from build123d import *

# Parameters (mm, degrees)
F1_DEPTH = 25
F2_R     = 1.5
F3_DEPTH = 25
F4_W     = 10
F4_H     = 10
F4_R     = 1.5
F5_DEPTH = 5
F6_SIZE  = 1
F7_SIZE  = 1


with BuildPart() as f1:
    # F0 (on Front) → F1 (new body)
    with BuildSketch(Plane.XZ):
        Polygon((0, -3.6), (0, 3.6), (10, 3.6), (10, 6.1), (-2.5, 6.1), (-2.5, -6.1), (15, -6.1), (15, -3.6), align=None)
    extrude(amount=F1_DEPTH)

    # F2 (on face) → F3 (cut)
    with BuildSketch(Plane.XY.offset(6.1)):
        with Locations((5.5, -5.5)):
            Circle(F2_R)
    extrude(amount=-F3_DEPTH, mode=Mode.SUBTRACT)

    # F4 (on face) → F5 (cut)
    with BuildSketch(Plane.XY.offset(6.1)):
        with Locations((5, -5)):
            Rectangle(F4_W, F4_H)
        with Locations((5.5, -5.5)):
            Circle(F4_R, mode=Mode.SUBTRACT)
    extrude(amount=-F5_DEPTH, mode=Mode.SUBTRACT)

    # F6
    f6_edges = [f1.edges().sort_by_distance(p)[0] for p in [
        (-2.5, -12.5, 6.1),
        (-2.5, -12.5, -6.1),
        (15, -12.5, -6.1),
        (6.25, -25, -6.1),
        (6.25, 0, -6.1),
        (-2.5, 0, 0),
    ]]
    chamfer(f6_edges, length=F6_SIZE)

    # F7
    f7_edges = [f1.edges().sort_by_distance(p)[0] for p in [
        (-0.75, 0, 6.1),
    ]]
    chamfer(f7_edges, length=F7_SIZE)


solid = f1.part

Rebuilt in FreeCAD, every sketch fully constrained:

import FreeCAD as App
import Part
import Sketcher

V = App.Vector
Q = App.Units.Quantity


def edges_at(feature, points):
    """Names of the edges that pass closest to the given points."""
    edges = feature.Shape.Edges
    near = lambda p: min(range(len(edges)), key=lambda i: edges[i].distToShape(Part.Vertex(*p))[0])
    return sorted({f"Edge{near(p) + 1}" for p in points})


def add_polygon(sketch, points):
    """Adds a closed chain of lines whose ends are joined by coincident constraints."""
    first, n = sketch.GeometryCount, len(points)
    for a, b in zip(points, points[1:] + points[:1]):
        sketch.addGeometry(Part.LineSegment(App.Vector(*a, 0), App.Vector(*b, 0)), False)
    for i in range(n):
        sketch.addConstraint(Sketcher.Constraint("Coincident", first + i, 2, first + (i + 1) % n, 1))

doc = App.newDocument("Part")
body = doc.addObject("PartDesign::Body", "Body")

sketch1 = body.newObject("Sketcher::SketchObject", "Sketch")
sketch1.AttachmentSupport = (doc.getObject("XZ_Plane"), [""])
sketch1.MapMode = "FlatFace"
add_polygon(sketch1, [(0, -3.6), (0, 3.6), (10, 3.6), (10, 6.1), (-2.5, 6.1), (-2.5, -6.1), (15, -6.1), (15, -3.6)])
sketch1.addConstraint([
    Sketcher.Constraint("Vertical", 0),
    Sketcher.Constraint("Horizontal", 1),
    Sketcher.Constraint("Vertical", 2),
    Sketcher.Constraint("Horizontal", 3),
    Sketcher.Constraint("Vertical", 4),
    Sketcher.Constraint("Horizontal", 5),
    Sketcher.Constraint("Vertical", 6),
    Sketcher.Constraint("Horizontal", 7),
    Sketcher.Constraint("Symmetric", 0, 2, 7, 2, -1, 1),
    Sketcher.Constraint("Equal", 2, 6),
    Sketcher.Constraint("DistanceX", 1, 1, 1, 2, Q("10 mm")),
    Sketcher.Constraint("DistanceX", 7, 2, 7, 1, Q("15 mm")),
    Sketcher.Constraint("DistanceX", 3, 2, 3, 1, Q("12.5 mm")),
    Sketcher.Constraint("DistanceY", 0, 1, 0, 2, Q("7.2 mm")),
    Sketcher.Constraint("DistanceY", 2, 1, 2, 2, Q("2.5 mm")),
])
pad1 = body.newObject("PartDesign::Pad", "Pad")
pad1.Profile = sketch1
pad1.Length = 25

sketch2 = body.newObject("Sketcher::SketchObject", "Sketch001")
sketch2.AttachmentSupport = (doc.getObject("XY_Plane"), [""])
sketch2.MapMode = "FlatFace"
sketch2.AttachmentOffset = App.Placement(V(0, 0, 6.1), App.Rotation())
sketch2.addGeometry(Part.Circle(V(5.5, -5.5, 0), V(0, 0, 1), 1.5), False)
sketch2.addConstraint([
    Sketcher.Constraint("Diameter", 0, Q("3 mm")),
    Sketcher.Constraint("DistanceX", -1, 1, 0, 3, Q("5.5 mm")),
    Sketcher.Constraint("DistanceY", 0, 3, -1, 1, Q("5.5 mm")),
])
pocket1 = body.newObject("PartDesign::Pocket", "Pocket")
pocket1.Profile = sketch2
pocket1.Length = 25

sketch3 = body.newObject("Sketcher::SketchObject", "Sketch002")
sketch3.AttachmentSupport = (doc.getObject("XY_Plane"), [""])
sketch3.MapMode = "FlatFace"
sketch3.AttachmentOffset = App.Placement(V(0, 0, 6.1), App.Rotation())
add_polygon(sketch3, [(0, 0), (0, -10), (10, -10), (10, 0)])
sketch3.addGeometry(Part.Circle(V(5.5, -5.5, 0), V(0, 0, 1), 1.5), False)
sketch3.addConstraint([
    Sketcher.Constraint("Vertical", 0),
    Sketcher.Constraint("Horizontal", 1),
    Sketcher.Constraint("Vertical", 2),
    Sketcher.Constraint("Horizontal", 3),
    Sketcher.Constraint("Coincident", 3, 2, -1, 1),
    Sketcher.Constraint("Equal", 3, 0),
    Sketcher.Constraint("Diameter", 4, Q("3 mm")),
    Sketcher.Constraint("DistanceX", 1, 1, 1, 2, Q("10 mm")),
    Sketcher.Constraint("DistanceX", -1, 1, 4, 3, Q("5.5 mm")),
    Sketcher.Constraint("DistanceY", 4, 3, -1, 1, Q("5.5 mm")),
])
pocket2 = body.newObject("PartDesign::Pocket", "Pocket001")
pocket2.Profile = sketch3
pocket2.Length = 5
doc.recompute()

chamfer = body.newObject("PartDesign::Chamfer", "Chamfer")
chamfer.Base = (pocket2, edges_at(pocket2, [
    (-2.5, -12.5, 6.1),
    (-2.5, -12.5, -6.1),
    (15, -12.5, -6.1),
    (6.25, -25, -6.1),
    (6.25, 0, -6.1),
    (-2.5, 0, 0),
]))
chamfer.Size = 1
doc.recompute()

chamfer2 = body.newObject("PartDesign::Chamfer", "Chamfer001")
chamfer2.Base = (chamfer, edges_at(chamfer, [(-0.75, 0, 6.1)]))
chamfer2.Size = 1

doc.recompute()
